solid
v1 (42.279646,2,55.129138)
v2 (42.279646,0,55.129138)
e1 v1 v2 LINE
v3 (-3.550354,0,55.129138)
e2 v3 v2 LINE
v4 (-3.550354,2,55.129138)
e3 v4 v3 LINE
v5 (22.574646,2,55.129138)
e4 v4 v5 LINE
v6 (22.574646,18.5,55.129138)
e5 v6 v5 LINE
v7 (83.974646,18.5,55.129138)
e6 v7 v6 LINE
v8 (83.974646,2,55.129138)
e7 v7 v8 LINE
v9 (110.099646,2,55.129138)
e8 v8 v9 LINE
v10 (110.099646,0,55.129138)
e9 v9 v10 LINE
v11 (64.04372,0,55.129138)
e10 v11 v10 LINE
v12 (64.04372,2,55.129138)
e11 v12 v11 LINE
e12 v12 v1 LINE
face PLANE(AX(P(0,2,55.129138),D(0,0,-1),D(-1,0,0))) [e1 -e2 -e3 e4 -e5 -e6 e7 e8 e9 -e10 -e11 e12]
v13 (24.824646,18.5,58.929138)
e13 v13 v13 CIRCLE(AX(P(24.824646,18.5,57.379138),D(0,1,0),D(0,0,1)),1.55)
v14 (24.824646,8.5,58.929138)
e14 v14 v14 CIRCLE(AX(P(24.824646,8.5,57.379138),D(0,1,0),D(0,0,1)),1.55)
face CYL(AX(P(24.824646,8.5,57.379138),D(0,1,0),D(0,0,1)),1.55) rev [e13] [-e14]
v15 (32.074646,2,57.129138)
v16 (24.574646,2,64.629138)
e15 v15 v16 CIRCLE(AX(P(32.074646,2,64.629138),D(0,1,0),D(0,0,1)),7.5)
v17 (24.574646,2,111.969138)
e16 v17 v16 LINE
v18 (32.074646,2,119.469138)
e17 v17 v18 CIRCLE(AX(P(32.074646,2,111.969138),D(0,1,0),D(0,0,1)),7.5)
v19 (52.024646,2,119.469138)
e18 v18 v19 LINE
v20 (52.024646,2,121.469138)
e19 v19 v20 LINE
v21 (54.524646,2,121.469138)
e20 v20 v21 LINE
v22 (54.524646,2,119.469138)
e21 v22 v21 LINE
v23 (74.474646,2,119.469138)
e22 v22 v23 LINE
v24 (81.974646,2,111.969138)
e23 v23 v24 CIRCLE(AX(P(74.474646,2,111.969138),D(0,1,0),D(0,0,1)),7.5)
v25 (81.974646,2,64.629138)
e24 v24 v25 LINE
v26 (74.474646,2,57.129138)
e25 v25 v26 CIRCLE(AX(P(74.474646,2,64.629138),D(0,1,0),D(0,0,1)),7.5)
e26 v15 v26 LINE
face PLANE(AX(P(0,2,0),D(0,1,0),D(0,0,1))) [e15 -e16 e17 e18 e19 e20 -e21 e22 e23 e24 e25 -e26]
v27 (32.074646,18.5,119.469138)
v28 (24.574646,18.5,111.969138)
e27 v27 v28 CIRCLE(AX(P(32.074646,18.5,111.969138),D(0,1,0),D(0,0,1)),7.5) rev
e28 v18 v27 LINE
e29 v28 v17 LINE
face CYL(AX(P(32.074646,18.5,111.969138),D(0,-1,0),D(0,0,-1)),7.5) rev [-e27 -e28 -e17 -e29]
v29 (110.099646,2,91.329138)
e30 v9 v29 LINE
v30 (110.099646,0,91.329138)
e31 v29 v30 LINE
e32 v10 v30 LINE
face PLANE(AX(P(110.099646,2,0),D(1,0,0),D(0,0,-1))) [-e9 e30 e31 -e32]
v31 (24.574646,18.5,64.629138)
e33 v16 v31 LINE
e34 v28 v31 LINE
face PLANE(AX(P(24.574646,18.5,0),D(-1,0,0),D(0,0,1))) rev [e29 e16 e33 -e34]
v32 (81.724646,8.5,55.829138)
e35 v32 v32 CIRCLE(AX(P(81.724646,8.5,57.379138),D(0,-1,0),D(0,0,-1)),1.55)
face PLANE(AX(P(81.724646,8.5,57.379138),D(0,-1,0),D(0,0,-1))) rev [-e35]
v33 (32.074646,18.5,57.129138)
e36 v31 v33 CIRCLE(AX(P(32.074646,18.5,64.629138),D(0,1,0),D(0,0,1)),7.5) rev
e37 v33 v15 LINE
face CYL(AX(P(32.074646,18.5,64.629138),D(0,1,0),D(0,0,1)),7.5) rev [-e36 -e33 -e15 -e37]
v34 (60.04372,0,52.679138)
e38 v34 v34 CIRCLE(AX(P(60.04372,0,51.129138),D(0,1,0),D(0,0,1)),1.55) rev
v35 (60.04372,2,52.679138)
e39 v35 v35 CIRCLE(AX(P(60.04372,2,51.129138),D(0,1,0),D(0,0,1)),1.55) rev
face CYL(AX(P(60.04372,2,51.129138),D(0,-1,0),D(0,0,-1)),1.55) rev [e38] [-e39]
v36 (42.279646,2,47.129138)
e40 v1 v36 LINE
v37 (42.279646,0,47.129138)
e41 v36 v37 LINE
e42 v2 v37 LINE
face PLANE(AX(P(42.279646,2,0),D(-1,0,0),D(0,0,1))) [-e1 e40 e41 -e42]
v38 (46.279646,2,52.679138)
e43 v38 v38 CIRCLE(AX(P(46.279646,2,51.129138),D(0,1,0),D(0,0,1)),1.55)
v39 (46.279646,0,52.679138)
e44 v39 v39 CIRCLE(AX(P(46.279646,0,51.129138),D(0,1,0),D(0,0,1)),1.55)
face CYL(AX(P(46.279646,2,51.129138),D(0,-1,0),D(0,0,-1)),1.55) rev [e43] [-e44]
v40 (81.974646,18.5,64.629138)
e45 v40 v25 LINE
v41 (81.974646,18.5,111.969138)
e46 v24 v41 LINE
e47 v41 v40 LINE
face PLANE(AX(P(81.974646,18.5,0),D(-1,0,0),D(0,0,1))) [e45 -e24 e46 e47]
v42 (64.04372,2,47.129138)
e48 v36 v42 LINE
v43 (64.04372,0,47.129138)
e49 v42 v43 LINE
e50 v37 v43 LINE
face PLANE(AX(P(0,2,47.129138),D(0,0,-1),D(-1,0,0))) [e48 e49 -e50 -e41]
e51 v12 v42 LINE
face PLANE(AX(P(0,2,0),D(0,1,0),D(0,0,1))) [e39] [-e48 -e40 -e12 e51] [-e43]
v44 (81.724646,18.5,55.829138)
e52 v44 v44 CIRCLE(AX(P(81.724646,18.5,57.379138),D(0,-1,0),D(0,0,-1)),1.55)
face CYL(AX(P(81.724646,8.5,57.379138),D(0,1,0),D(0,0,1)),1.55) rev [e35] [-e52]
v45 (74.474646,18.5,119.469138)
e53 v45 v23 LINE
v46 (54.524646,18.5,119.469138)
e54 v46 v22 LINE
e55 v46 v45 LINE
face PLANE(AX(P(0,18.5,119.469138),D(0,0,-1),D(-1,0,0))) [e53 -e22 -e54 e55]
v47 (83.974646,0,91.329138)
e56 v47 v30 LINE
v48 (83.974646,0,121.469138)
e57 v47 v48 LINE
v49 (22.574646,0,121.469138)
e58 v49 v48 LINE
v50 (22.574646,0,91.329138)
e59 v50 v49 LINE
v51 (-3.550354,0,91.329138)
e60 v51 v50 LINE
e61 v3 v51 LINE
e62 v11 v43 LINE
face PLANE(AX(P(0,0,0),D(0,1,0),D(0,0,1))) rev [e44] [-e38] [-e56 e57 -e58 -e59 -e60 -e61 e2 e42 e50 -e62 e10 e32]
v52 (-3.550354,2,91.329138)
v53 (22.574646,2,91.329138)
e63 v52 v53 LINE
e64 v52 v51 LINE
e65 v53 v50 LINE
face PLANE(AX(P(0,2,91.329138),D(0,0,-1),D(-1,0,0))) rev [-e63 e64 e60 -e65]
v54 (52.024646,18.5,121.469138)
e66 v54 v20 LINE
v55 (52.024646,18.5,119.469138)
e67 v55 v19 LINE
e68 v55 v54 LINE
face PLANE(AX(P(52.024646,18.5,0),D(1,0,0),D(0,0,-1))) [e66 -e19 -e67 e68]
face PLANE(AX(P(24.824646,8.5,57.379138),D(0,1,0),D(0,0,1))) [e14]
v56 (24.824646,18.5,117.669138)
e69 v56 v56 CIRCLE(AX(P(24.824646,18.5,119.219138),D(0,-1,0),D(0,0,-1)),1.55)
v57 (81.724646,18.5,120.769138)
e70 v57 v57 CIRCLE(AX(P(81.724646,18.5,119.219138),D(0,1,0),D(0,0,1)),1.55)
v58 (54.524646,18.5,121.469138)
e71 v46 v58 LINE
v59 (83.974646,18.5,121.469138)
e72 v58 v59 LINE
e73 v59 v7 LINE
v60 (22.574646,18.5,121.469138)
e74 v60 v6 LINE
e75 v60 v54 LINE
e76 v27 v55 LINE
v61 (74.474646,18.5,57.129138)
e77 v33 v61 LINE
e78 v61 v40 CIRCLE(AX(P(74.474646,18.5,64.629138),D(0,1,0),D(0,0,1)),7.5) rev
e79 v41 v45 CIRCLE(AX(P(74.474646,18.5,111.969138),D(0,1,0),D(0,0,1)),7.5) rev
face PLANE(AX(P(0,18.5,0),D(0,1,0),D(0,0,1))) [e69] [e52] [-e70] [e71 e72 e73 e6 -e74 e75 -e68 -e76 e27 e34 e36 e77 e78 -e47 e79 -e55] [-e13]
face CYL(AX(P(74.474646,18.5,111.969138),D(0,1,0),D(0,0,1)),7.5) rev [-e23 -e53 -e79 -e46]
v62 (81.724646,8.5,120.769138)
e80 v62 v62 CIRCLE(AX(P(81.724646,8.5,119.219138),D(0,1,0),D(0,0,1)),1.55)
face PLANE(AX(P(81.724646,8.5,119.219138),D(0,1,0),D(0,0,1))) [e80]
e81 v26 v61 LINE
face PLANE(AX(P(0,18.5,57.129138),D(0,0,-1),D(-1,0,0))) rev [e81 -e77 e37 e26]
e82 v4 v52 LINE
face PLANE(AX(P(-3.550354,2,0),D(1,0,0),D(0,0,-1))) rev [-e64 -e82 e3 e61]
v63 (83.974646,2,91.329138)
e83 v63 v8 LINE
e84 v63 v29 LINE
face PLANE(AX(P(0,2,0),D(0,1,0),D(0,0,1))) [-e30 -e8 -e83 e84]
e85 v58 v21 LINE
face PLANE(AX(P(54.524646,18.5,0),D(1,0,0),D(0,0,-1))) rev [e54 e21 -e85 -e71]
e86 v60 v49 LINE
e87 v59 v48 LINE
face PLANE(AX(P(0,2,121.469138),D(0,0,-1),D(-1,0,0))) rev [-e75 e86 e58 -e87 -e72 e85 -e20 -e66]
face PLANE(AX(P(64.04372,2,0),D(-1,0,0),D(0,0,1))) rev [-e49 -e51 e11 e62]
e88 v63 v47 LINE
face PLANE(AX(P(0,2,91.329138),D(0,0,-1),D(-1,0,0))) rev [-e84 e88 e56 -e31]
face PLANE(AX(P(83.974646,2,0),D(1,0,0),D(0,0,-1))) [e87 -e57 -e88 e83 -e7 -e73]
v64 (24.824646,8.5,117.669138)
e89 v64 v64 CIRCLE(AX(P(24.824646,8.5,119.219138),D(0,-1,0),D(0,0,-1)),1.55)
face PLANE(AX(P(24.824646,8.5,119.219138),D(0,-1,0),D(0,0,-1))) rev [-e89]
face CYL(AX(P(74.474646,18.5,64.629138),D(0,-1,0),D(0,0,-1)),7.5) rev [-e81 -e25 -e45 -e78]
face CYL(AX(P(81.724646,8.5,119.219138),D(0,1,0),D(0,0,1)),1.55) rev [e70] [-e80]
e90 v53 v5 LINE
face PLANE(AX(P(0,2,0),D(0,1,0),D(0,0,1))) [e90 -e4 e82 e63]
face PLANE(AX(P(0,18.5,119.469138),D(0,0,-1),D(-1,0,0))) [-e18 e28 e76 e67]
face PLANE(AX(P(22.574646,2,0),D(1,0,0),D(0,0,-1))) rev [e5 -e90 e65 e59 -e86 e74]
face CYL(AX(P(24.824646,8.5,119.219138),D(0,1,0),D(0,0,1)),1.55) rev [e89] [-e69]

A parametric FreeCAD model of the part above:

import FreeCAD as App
import Part
import Sketcher

V = App.Vector
Q = App.Units.Quantity


def edges_at(feature, points):
    """Names of the edges that pass closest to the given points."""
    edges = feature.Shape.Edges
    near = lambda p: min(range(len(edges)), key=lambda i: edges[i].distToShape(Part.Vertex(*p))[0])
    return sorted({f"Edge{near(p) + 1}" for p in points})

doc = App.newDocument("Part")
body = doc.addObject("PartDesign::Body", "Body")

# Sketch on XZ plane
sketch1 = doc.addObject("Sketcher::SketchObject", "Sketch")
body.addObject(sketch1)
sketch1.AttachmentSupport = (doc.XZ_Plane, [""])
sketch1.MapMode = "FlatFace"
sketch1.addGeometry([
    Part.LineSegment(V(64, 55.1, 0), V(64, 47.1, 0)),  # 0
    Part.LineSegment(V(64, 47.1, 0), V(42.3, 47.1, 0)),  # 1
    Part.LineSegment(V(42.3, 47.1, 0), V(42.3, 55.1, 0)),  # 2
    Part.LineSegment(V(42.3, 55.1, 0), V(-3.6, 55.1, 0)),  # 3
    Part.LineSegment(V(-3.6, 55.1, 0), V(-3.6, 91.3, 0)),  # 4
    Part.LineSegment(V(-3.6, 91.3, 0), V(22.6, 91.3, 0)),  # 5
    Part.LineSegment(V(22.6, 91.3, 0), V(22.6, 121.5, 0)),  # 6
    Part.LineSegment(V(22.6, 121.5, 0), V(84, 121.5, 0)),  # 7
    Part.LineSegment(V(84, 121.5, 0), V(84, 91.3, 0)),  # 8
    Part.LineSegment(V(84, 91.3, 0), V(110.1, 91.3, 0)),  # 9
    Part.LineSegment(V(110.1, 91.3, 0), V(110.1, 55.1, 0)),  # 10
    Part.LineSegment(V(110.1, 55.1, 0), V(64, 55.1, 0)),  # 11
    Part.Circle(V(60, 51.1, 0), V(0, 0, 1), 1.6),  # 12
    Part.Circle(V(46.3, 51.1, 0), V(0, 0, 1), 1.6),  # 13
], False)
sketch1.addConstraint([
    Sketcher.Constraint("Coincident", 0, 2, 1, 1),
    Sketcher.Constraint("Coincident", 1, 2, 2, 1),
    Sketcher.Constraint("Coincident", 2, 2, 3, 1),
    Sketcher.Constraint("Coincident", 3, 2, 4, 1),
    Sketcher.Constraint("Coincident", 4, 2, 5, 1),
    Sketcher.Constraint("Coincident", 5, 2, 6, 1),
    Sketcher.Constraint("Coincident", 6, 2, 7, 1),
    Sketcher.Constraint("Coincident", 7, 2, 8, 1),
    Sketcher.Constraint("Coincident", 8, 2, 9, 1),
    Sketcher.Constraint("Coincident", 9, 2, 10, 1),
    Sketcher.Constraint("Coincident", 10, 2, 11, 1),
    Sketcher.Constraint("Coincident", 11, 2, 0, 1),
    Sketcher.Constraint("Vertical", 0),
    Sketcher.Constraint("Horizontal", 1),
    Sketcher.Constraint("Vertical", 2),
    Sketcher.Constraint("Horizontal", 3),
    Sketcher.Constraint("Vertical", 4),
    Sketcher.Constraint("Horizontal", 5),
    Sketcher.Constraint("Vertical", 6),
    Sketcher.Constraint("Horizontal", 7),
    Sketcher.Constraint("Vertical", 8),
    Sketcher.Constraint("Horizontal", 9),
    Sketcher.Constraint("Vertical", 10),
    Sketcher.Constraint("Horizontal", 11),
    Sketcher.Constraint("Equal", 12, 13),
    Sketcher.Constraint("Horizontal", 12, 3, 13, 3),
    Sketcher.Constraint("Horizontal", 5, 2, 8, 2),
    Sketcher.Constraint("Horizontal", 3, 2, 10, 2),
    Sketcher.Constraint("Equal", 5, 9),
    Sketcher.Constraint("Diameter", 12, Q("3.1 mm")),
    Sketcher.Constraint("DistanceY", 0, 2, 0, 1, Q("8 mm")),
    Sketcher.Constraint("DistanceX", 7, 1, 7, 2, Q("61.4 mm")),
    Sketcher.Constraint("DistanceY", 4, 1, 4, 2, Q("36.2 mm")),
    Sketcher.Constraint("DistanceX", 12, 3, 0, 2, Q("4 mm")),
    Sketcher.Constraint("DistanceY", 0, 2, 12, 3, Q("4 mm")),
    Sketcher.Constraint("DistanceX", 1, 2, 13, 3, Q("4 mm")),
    Sketcher.Constraint("DistanceX", 3, 2, 3, 1, Q("45.83 mm")),
    Sketcher.Constraint("DistanceY", 6, 1, 6, 2, Q("30.14 mm")),
    Sketcher.Constraint("DistanceX", 5, 1, 5, 2, Q("26.125 mm")),
    Sketcher.Constraint("DistanceX", 1, 2, 1, 1, Q("21.764074 mm")),
    Sketcher.Constraint("DistanceX", -1, 1, 12, 3, Q("60.04372 mm")),
    Sketcher.Constraint("DistanceY", -1, 1, 12, 3, Q("51.129138 mm")),
])
pad1 = doc.addObject("PartDesign::Pad", "Pad")
body.addObject(pad1)
pad1.Profile = sketch1
pad1.Length = 2
pad1.Reversed = True

# Sketch on XZ plane
sketch2 = doc.addObject("Sketcher::SketchObject", "Sketch001")
body.addObject(sketch2)
sketch2.AttachmentSupport = (doc.XZ_Plane, [""])
sketch2.MapMode = "FlatFace"
sketch2.AttachmentOffset = App.Placement(V(0, 0, -2), App.Rotation())
sketch2.addGeometry([
    Part.LineSegment(V(22.6, 121.5, 0), V(52, 121.5, 0)),  # 0
    Part.LineSegment(V(52, 121.5, 0), V(52, 119.5, 0)),  # 1
    Part.LineSegment(V(52, 119.5, 0), V(24.6, 119.5, 0)),  # 2
    Part.LineSegment(V(24.6, 119.5, 0), V(24.6, 57.1, 0)),  # 3
    Part.LineSegment(V(24.6, 57.1, 0), V(82, 57.1, 0)),  # 4
    Part.LineSegment(V(82, 57.1, 0), V(82, 119.5, 0)),  # 5
    Part.LineSegment(V(82, 119.5, 0), V(54.5, 119.5, 0)),  # 6
    Part.LineSegment(V(54.5, 119.5, 0), V(54.5, 121.5, 0)),  # 7
    Part.LineSegment(V(54.5, 121.5, 0), V(84, 121.5, 0)),  # 8
    Part.LineSegment(V(84, 121.5, 0), V(84, 55.1, 0)),  # 9
    Part.LineSegment(V(84, 55.1, 0), V(22.6, 55.1, 0)),  # 10
    Part.LineSegment(V(22.6, 55.1, 0), V(22.6, 121.5, 0)),  # 11
], False)
sketch2.addConstraint([
    Sketcher.Constraint("Coincident", 0, 2, 1, 1),
    Sketcher.Constraint("Coincident", 1, 2, 2, 1),
    Sketcher.Constraint("Coincident", 2, 2, 3, 1),
    Sketcher.Constraint("Coincident", 3, 2, 4, 1),
    Sketcher.Constraint("Coincident", 4, 2, 5, 1),
    Sketcher.Constraint("Coincident", 5, 2, 6, 1),
    Sketcher.Constraint("Coincident", 6, 2, 7, 1),
    Sketcher.Constraint("Coincident", 7, 2, 8, 1),
    Sketcher.Constraint("Coincident", 8, 2, 9, 1),
    Sketcher.Constraint("Coincident", 9, 2, 10, 1),
    Sketcher.Constraint("Coincident", 10, 2, 11, 1),
    Sketcher.Constraint("Coincident", 11, 2, 0, 1),
    Sketcher.Constraint("Horizontal", 0),
    Sketcher.Constraint("Vertical", 1),
    Sketcher.Constraint("Horizontal", 2),
    Sketcher.Constraint("Vertical", 3),
    Sketcher.Constraint("Horizontal", 4),
    Sketcher.Constraint("Vertical", 5),
    Sketcher.Constraint("Horizontal", 6),
    Sketcher.Constraint("Vertical", 7),
    Sketcher.Constraint("Horizontal", 8),
    Sketcher.Constraint("Vertical", 9),
    Sketcher.Constraint("Horizontal", 10),
    Sketcher.Constraint("Vertical", 11),
    Sketcher.Constraint("Horizontal", 2, 2, 5, 2),
    Sketcher.Constraint("Horizontal", 0, 2, 7, 2),
    Sketcher.Constraint("Equal", 2, 6),
    Sketcher.Constraint("Equal", 0, 8),
    Sketcher.Constraint("DistanceY", 1, 2, 1, 1, Q("2 mm")),
    Sketcher.Constraint("DistanceX", 4, 1, 4, 2, Q("57.4 mm")),
    Sketcher.Constraint("DistanceX", 10, 2, 10, 1, Q("61.4 mm")),
    Sketcher.Constraint("DistanceY", 9, 2, 4, 2, Q("2 mm")),
    Sketcher.Constraint("DistanceX", 0, 1, 0, 2, Q("29.45 mm")),
    Sketcher.Constraint("DistanceY", 3, 2, 3, 1, Q("62.34 mm")),
    Sketcher.Constraint("DistanceX", -1, 1, 0, 2, Q("52.024646 mm")),
    Sketcher.Constraint("DistanceY", -1, 1, 0, 2, Q("121.469138 mm")),
])
pad2 = doc.addObject("PartDesign::Pad", "Pad001")
body.addObject(pad2)
pad2.Profile = sketch2
pad2.Length = 16.5
pad2.Reversed = True
doc.recompute()

fillet = doc.addObject("PartDesign::Fillet", "Fillet")
body.addObject(fillet)
fillet.Base = (pad2, edges_at(pad2, [
    (81.975, 10.25, 119.469),
    (24.575, 10.25, 119.469),
    (24.575, 10.25, 57.129),
    (81.975, 10.25, 57.129),
]))
fillet.Radius = 7.5

# Sketch on XZ plane
sketch3 = doc.addObject("Sketcher::SketchObject", "Sketch002")
body.addObject(sketch3)
sketch3.AttachmentSupport = (doc.XZ_Plane, [""])
sketch3.MapMode = "FlatFace"
sketch3.AttachmentOffset = App.Placement(V(0, 0, -18.5), App.Rotation())
sketch3.addGeometry([
    Part.Circle(V(24.8, 57.4, 0), V(0, 0, 1), 1.6),
    Part.Circle(V(81.7, 57.4, 0), V(0, 0, 1), 1.6),
    Part.Circle(V(81.7, 119.2, 0), V(0, 0, 1), 1.6),
    Part.Circle(V(24.8, 119.2, 0), V(0, 0, 1), 1.6),
], False)
sketch3.addConstraint([
    Sketcher.Constraint("Equal", 0, 1),
    Sketcher.Constraint("Equal", 1, 2),
    Sketcher.Constraint("Equal", 2, 3),
    Sketcher.Constraint("Horizontal", 0, 3, 1, 3),
    Sketcher.Constraint("Horizontal", 2, 3, 3, 3),
    Sketcher.Constraint("Vertical", 1, 3, 2, 3),
    Sketcher.Constraint("Vertical", 0, 3, 3, 3),
    Sketcher.Constraint("Diameter", 0, Q("3.1 mm")),
    Sketcher.Constraint("DistanceX", 0, 3, 1, 3, Q("56.9 mm")),
    Sketcher.Constraint("DistanceY", 1, 3, 2, 3, Q("61.84 mm")),
    Sketcher.Constraint("DistanceX", -1, 1, 0, 3, Q("24.824646 mm")),
    Sketcher.Constraint("DistanceY", -1, 1, 0, 3, Q("57.379138 mm")),
])
pocket1 = doc.addObject("PartDesign::Pocket", "Pocket")
body.addObject(pocket1)
pocket1.Profile = sketch3
pocket1.Length = 10
pocket1.Reversed = True

doc.recompute()
